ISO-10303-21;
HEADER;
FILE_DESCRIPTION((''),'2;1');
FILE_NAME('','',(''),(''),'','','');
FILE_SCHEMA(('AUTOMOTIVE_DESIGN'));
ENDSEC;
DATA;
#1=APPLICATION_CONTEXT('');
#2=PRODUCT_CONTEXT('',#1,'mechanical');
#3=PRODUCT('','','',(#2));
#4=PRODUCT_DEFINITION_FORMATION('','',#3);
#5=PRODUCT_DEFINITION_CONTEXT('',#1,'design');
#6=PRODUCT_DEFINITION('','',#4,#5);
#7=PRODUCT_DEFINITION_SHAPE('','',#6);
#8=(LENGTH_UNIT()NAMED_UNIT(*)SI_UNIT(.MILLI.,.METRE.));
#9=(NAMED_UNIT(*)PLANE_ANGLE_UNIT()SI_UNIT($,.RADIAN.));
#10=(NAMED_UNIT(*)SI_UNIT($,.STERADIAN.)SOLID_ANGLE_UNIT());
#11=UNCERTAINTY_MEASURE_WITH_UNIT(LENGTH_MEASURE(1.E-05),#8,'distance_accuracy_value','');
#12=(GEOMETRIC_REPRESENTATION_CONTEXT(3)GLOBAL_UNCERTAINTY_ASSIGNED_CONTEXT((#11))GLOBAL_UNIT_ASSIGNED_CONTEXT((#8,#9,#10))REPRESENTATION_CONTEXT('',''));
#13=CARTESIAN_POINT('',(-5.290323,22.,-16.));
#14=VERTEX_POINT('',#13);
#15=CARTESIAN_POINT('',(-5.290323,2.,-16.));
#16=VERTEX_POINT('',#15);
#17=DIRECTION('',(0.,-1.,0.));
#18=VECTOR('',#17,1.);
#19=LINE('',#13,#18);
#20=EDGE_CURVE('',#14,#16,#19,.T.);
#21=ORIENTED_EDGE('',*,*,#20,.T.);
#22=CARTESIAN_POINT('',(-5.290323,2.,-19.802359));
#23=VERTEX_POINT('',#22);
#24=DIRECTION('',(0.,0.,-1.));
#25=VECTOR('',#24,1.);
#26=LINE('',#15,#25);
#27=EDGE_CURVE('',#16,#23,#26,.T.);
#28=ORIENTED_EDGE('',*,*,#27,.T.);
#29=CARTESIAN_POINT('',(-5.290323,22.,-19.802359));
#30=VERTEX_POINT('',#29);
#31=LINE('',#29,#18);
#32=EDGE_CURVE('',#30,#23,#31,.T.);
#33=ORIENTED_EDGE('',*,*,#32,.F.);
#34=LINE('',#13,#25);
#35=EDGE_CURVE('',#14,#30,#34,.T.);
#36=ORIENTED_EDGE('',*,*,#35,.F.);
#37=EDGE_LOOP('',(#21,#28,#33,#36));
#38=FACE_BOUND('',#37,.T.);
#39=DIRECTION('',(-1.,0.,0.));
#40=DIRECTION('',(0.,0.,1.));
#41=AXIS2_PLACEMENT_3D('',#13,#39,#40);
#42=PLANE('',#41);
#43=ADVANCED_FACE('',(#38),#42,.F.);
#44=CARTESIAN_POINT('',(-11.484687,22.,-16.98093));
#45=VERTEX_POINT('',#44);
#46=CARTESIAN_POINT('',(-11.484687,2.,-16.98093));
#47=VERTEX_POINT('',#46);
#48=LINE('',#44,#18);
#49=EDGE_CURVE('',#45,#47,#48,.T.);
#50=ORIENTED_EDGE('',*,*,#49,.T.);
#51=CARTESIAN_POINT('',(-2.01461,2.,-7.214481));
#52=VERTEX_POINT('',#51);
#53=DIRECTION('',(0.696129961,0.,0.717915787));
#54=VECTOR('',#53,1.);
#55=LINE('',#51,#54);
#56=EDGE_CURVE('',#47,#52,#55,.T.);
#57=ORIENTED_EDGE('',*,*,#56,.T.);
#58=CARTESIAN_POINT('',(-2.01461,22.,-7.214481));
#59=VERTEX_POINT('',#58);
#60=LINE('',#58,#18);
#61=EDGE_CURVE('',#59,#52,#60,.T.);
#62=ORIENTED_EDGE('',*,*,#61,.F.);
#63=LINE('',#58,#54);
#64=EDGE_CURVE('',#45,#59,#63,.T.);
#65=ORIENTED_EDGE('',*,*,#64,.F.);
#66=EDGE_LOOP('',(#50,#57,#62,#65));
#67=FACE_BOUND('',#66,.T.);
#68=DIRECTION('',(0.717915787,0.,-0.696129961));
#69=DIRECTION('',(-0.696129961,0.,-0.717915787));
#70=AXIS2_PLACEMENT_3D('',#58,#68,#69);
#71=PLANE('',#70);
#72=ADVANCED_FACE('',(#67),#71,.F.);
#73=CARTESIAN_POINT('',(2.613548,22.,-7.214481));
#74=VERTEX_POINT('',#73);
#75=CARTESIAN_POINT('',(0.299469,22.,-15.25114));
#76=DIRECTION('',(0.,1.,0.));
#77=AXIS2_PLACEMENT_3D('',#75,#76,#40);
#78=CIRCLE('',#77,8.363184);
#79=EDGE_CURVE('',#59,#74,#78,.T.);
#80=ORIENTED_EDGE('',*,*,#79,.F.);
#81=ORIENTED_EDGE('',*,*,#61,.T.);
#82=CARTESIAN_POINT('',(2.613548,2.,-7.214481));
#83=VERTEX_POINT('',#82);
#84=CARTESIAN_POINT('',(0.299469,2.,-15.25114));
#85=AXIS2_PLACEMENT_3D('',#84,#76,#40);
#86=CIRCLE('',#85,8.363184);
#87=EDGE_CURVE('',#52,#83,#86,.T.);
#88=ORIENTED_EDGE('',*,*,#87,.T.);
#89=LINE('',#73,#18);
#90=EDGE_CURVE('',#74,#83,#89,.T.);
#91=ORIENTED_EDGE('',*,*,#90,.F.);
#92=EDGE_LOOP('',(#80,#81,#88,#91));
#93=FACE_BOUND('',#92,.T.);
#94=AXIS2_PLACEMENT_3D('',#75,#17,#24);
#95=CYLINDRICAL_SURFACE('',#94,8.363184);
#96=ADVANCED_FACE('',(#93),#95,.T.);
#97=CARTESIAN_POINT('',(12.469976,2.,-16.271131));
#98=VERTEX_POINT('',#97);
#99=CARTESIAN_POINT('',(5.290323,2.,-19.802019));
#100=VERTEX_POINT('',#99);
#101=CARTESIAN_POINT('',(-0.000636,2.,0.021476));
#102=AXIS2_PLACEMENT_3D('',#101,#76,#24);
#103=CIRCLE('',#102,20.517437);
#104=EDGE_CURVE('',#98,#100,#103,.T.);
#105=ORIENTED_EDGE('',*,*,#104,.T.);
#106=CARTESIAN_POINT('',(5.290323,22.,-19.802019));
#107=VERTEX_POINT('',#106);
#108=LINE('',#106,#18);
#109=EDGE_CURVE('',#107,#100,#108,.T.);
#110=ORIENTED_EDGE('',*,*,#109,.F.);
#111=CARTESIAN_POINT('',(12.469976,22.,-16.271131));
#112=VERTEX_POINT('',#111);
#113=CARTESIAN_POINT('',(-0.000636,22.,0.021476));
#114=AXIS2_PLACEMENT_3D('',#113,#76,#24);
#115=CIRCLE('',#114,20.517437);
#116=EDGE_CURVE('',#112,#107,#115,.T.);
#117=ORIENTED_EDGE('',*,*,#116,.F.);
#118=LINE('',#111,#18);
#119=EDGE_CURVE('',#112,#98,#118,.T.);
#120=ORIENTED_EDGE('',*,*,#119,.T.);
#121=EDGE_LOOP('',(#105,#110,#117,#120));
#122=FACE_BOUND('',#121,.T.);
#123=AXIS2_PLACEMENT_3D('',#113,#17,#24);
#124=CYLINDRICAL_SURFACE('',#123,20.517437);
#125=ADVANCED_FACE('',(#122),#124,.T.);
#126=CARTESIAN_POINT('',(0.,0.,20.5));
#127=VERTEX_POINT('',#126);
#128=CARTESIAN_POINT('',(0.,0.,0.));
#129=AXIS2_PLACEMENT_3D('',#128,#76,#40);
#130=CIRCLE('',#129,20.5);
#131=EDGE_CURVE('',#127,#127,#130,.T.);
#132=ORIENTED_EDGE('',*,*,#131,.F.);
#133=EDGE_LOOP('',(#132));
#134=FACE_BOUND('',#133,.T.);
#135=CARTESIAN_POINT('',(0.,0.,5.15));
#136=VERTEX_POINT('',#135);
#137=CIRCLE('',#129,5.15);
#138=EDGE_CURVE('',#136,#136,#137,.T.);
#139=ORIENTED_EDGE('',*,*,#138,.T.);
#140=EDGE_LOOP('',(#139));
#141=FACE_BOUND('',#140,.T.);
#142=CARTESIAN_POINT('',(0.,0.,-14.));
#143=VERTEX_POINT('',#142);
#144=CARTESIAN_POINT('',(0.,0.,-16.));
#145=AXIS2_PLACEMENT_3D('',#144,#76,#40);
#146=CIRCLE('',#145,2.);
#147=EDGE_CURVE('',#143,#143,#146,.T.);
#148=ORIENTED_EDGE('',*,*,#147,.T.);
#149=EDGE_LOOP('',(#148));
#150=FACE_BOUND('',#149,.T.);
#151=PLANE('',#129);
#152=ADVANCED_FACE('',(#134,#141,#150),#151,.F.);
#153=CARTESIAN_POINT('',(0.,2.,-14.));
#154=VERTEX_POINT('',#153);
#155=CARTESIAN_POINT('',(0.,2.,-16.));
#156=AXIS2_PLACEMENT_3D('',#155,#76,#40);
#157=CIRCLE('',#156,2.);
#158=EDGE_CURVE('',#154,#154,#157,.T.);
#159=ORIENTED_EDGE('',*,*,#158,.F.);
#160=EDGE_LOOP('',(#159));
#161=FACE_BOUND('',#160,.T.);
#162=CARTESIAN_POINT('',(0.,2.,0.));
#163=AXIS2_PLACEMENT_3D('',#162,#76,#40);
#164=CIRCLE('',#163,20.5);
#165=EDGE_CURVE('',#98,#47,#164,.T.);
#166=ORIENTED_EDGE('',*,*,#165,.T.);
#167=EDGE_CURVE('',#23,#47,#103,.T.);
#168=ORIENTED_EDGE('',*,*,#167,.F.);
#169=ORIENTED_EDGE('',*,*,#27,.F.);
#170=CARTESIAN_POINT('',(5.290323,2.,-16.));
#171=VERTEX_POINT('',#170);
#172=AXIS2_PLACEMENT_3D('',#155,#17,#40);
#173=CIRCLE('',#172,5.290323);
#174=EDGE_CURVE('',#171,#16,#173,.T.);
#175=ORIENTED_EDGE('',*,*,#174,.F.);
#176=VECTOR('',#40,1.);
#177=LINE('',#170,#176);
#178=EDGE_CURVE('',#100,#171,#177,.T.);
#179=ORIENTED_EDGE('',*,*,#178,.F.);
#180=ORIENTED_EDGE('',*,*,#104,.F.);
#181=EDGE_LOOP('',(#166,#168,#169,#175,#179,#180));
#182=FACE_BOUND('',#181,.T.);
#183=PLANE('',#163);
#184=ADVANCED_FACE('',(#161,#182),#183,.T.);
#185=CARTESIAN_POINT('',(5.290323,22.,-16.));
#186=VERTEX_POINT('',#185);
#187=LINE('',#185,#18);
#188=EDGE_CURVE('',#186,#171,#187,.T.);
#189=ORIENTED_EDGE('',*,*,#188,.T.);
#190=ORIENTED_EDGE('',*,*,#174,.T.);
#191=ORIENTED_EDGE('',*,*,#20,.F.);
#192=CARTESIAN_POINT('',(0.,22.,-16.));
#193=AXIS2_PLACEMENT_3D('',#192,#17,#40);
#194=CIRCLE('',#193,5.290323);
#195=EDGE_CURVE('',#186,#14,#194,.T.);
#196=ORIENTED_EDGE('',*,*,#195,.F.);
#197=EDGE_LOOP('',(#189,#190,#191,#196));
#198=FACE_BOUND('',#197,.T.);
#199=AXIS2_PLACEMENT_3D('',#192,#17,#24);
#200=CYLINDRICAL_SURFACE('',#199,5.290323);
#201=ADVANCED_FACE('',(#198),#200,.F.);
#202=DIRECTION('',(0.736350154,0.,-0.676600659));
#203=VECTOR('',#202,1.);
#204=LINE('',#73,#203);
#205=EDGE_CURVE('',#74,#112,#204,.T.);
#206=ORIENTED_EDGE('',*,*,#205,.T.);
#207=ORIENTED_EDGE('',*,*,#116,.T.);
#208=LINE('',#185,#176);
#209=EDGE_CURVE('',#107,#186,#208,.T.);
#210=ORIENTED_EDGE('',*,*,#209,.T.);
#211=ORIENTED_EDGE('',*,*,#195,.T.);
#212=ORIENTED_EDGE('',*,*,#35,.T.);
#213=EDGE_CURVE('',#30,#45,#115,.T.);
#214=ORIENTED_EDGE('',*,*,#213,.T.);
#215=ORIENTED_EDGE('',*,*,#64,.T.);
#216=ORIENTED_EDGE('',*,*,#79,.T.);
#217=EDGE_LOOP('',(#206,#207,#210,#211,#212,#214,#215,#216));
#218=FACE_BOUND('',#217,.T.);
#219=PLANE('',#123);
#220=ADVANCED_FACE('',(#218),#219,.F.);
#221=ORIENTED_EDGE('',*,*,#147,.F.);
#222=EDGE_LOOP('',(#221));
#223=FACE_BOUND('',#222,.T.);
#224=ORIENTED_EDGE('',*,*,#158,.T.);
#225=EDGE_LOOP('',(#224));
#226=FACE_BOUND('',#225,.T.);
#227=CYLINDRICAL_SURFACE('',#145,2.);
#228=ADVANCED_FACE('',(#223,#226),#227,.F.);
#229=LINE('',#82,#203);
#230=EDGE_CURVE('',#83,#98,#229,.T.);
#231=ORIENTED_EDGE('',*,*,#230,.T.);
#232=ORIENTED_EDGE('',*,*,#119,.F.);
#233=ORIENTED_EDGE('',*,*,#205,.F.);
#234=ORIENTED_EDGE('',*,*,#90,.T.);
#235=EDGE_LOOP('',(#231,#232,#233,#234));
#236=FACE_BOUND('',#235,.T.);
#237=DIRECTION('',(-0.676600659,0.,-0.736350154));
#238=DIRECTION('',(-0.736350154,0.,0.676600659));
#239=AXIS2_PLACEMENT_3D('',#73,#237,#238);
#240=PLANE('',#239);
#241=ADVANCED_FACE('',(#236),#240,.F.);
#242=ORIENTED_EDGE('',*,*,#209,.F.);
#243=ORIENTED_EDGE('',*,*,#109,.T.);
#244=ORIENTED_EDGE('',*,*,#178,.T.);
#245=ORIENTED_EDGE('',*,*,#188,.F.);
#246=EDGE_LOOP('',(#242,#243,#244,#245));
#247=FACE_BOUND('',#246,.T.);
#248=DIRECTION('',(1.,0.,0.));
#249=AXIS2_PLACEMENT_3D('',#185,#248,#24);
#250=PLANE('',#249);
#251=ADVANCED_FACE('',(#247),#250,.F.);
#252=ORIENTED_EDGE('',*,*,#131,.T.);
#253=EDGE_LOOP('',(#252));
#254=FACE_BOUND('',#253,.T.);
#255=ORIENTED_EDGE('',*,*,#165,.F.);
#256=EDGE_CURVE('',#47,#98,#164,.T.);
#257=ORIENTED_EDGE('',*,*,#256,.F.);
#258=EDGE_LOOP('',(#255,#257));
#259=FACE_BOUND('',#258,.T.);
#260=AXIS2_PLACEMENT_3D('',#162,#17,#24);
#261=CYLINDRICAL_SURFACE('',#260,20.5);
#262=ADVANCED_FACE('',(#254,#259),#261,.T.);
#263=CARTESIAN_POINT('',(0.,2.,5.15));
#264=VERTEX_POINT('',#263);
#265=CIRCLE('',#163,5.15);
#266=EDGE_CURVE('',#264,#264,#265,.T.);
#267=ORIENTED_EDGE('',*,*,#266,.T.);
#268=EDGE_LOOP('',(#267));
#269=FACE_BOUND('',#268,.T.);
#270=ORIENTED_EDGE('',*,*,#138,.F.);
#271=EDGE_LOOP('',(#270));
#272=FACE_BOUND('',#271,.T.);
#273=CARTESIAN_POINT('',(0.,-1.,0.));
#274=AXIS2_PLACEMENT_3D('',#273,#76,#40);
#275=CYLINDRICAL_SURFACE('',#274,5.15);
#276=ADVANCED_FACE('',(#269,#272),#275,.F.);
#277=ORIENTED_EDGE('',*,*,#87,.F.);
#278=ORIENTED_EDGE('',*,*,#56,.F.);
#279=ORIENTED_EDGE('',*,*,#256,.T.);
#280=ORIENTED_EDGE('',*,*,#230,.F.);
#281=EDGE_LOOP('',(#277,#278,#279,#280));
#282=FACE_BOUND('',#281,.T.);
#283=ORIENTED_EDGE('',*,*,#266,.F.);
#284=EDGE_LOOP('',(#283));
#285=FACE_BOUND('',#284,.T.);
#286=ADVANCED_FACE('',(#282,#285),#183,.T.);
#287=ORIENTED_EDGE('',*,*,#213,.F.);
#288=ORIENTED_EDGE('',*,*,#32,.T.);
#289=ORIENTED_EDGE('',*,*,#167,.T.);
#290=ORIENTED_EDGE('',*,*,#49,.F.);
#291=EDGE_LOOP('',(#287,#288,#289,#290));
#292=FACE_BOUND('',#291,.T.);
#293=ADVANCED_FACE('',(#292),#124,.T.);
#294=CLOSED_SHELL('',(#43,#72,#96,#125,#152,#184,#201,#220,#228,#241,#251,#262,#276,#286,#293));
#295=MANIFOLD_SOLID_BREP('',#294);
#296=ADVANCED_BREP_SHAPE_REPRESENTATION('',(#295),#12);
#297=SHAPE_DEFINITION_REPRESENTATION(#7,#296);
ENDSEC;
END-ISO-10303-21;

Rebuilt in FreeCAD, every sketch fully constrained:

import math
import FreeCAD as App
import Part
import Sketcher

V = App.Vector
Q = App.Units.Quantity

doc = App.newDocument("Part")
body = doc.addObject("PartDesign::Body", "Body")

sketch1 = body.newObject("Sketcher::SketchObject", "Sketch")
sketch1.AttachmentSupport = (doc.getObject("XZ_Plane"), [""])
sketch1.MapMode = "FlatFace"
sketch1.addGeometry(Part.Circle(V(0, 0, 0), V(0, 0, 1), 20), False)
sketch1.addConstraint(Sketcher.Constraint("Coincident", 0, 3, -1, 1))
sketch1.addConstraint(Sketcher.Constraint("Diameter", 0, Q("41 mm")))
pad1 = body.newObject("PartDesign::Pad", "Pad")
pad1.Profile = sketch1
pad1.Length = 2
pad1.Reversed = True

sketch2 = body.newObject("Sketcher::SketchObject", "Sketch001")
sketch2.AttachmentSupport = (doc.getObject("XZ_Plane"), [""])
sketch2.MapMode = "FlatFace"
sketch2.AttachmentOffset = App.Placement(V(0, 0, -2), App.Rotation())
sketch2.addGeometry(Part.Circle(V(0, 0, 0), V(0, 0, 1), 5), False)
sketch2.addConstraint(Sketcher.Constraint("Coincident", 0, 3, -1, 1))
sketch2.addConstraint(Sketcher.Constraint("Diameter", 0, Q("10.3 mm")))
pocket1 = body.newObject("PartDesign::Pocket", "Pocket")
pocket1.Profile = sketch2
pocket1.Length = 3
pocket1.Reversed = True

sketch3 = body.newObject("Sketcher::SketchObject", "Sketch002")
sketch3.AttachmentSupport = (doc.getObject("XZ_Plane"), [""])
sketch3.MapMode = "FlatFace"
sketch3.AttachmentOffset = App.Placement(V(0, 0, -2), App.Rotation())
sketch3.addGeometry(Part.Circle(V(0, -16, 0), V(0, 0, 1), 2), False)
sketch3.addConstraint(Sketcher.Constraint("PointOnObject", 0, 3, -2))
sketch3.addConstraint(Sketcher.Constraint("Diameter", 0, Q("4 mm")))
sketch3.addConstraint(Sketcher.Constraint("DistanceY", 0, 3, -1, 1, Q("16 mm")))
pocket2 = body.newObject("PartDesign::Pocket", "Pocket001")
pocket2.Profile = sketch3
pocket2.Length = 2
pocket2.Reversed = True

sketch4 = body.newObject("Sketcher::SketchObject", "Sketch003")
sketch4.AttachmentSupport = (doc.getObject("XZ_Plane"), [""])
sketch4.MapMode = "FlatFace"
sketch4.AttachmentOffset = App.Placement(V(0, 0, -2), App.Rotation())
sketch4.addGeometry(Part.LineSegment(V(-11.5, -17, 0), V(-2, -7.2, 0)), False)
sketch4.addGeometry(Part.ArcOfCircle(Part.Circle(V(0.3, -15.3, 0), V(0, 0, 1), 8.4), math.radians(74), math.radians(106)), False)
sketch4.addGeometry(Part.LineSegment(V(2.6, -7.2, 0), V(12.5, -16.3, 0)), False)
sketch4.addGeometry(Part.ArcOfCircle(Part.Circle(V(0, 0, 0), V(0, 0, 1), 20.5), math.radians(-75), math.radians(-53)), False)
sketch4.addGeometry(Part.LineSegment(V(5.3, -19.8, 0), V(5.3, -16, 0)), False)
sketch4.addGeometry(Part.ArcOfCircle(Part.Circle(V(0, -16, 0), V(0, 0, 1), 5.3), math.radians(0), math.radians(180)), False)
sketch4.addGeometry(Part.LineSegment(V(-5.3, -16, 0), V(-5.3, -19.8, 0)), False)
sketch4.addGeometry(Part.ArcOfCircle(Part.Circle(V(0, 0, 0), V(0, 0, 1), 20.5), math.radians(-124.04), math.radians(-104.94)), False)
sketch4.addConstraint(Sketcher.Constraint("Coincident", 0, 2, 1, 2))
sketch4.addConstraint(Sketcher.Constraint("Coincident", 1, 1, 2, 1))
sketch4.addConstraint(Sketcher.Constraint("Coincident", 2, 2, 3, 2))
sketch4.addConstraint(Sketcher.Constraint("Coincident", 3, 1, 4, 1))
sketch4.addConstraint(Sketcher.Constraint("Tangent", 4, 2, 5, 1))
sketch4.addConstraint(Sketcher.Constraint("Tangent", 5, 2, 6, 1))
sketch4.addConstraint(Sketcher.Constraint("Coincident", 6, 2, 7, 2))
sketch4.addConstraint(Sketcher.Constraint("Coincident", 7, 1, 0, 1))
sketch4.addConstraint(Sketcher.Constraint("Vertical", 4))
sketch4.addConstraint(Sketcher.Constraint("Vertical", 6))
sketch4.addConstraint(Sketcher.Constraint("Coincident", 7, 3, 3, 3))
sketch4.addConstraint(Sketcher.Constraint("Equal", 3, 7))
sketch4.addConstraint(Sketcher.Constraint("PointOnObject", 5, 3, -2))
sketch4.addConstraint(Sketcher.Constraint("Horizontal", 0, 2, 1, 1))
sketch4.addConstraint(Sketcher.Constraint("DistanceY", 5, 3, -1, 1, Q("16 mm")))
sketch4.addConstraint(Sketcher.Constraint("Radius", 1, Q("8.363184 mm")))
sketch4.addConstraint(Sketcher.Constraint("Radius", 3, Q("20.517437 mm")))
sketch4.addConstraint(Sketcher.Constraint("Radius", 5, Q("5.290323 mm")))
sketch4.addConstraint(Sketcher.Constraint("DistanceY", 4, 1, 4, 2, Q("3.802019 mm")))
sketch4.addConstraint(Sketcher.Constraint("DistanceY", 6, 2, 6, 1, Q("3.802359 mm")))
sketch4.addConstraint(Sketcher.Constraint("Distance", 2, Q("13.385518 mm")))
sketch4.addConstraint(Sketcher.Constraint("DistanceX", -1, 1, 1, 3, Q("0.299469 mm")))
sketch4.addConstraint(Sketcher.Constraint("DistanceY", 1, 3, -1, 1, Q("15.25114 mm")))
sketch4.addConstraint(Sketcher.Constraint("DistanceX", 0, 2, -1, 1, Q("2.01461 mm")))
sketch4.addConstraint(Sketcher.Constraint("DistanceY", 7, 1, -1, 1, Q("16.98093 mm")))
pad2 = body.newObject("PartDesign::Pad", "Pad001")
pad2.Profile = sketch4
pad2.Length = 20
pad2.Reversed = True

doc.recompute()
